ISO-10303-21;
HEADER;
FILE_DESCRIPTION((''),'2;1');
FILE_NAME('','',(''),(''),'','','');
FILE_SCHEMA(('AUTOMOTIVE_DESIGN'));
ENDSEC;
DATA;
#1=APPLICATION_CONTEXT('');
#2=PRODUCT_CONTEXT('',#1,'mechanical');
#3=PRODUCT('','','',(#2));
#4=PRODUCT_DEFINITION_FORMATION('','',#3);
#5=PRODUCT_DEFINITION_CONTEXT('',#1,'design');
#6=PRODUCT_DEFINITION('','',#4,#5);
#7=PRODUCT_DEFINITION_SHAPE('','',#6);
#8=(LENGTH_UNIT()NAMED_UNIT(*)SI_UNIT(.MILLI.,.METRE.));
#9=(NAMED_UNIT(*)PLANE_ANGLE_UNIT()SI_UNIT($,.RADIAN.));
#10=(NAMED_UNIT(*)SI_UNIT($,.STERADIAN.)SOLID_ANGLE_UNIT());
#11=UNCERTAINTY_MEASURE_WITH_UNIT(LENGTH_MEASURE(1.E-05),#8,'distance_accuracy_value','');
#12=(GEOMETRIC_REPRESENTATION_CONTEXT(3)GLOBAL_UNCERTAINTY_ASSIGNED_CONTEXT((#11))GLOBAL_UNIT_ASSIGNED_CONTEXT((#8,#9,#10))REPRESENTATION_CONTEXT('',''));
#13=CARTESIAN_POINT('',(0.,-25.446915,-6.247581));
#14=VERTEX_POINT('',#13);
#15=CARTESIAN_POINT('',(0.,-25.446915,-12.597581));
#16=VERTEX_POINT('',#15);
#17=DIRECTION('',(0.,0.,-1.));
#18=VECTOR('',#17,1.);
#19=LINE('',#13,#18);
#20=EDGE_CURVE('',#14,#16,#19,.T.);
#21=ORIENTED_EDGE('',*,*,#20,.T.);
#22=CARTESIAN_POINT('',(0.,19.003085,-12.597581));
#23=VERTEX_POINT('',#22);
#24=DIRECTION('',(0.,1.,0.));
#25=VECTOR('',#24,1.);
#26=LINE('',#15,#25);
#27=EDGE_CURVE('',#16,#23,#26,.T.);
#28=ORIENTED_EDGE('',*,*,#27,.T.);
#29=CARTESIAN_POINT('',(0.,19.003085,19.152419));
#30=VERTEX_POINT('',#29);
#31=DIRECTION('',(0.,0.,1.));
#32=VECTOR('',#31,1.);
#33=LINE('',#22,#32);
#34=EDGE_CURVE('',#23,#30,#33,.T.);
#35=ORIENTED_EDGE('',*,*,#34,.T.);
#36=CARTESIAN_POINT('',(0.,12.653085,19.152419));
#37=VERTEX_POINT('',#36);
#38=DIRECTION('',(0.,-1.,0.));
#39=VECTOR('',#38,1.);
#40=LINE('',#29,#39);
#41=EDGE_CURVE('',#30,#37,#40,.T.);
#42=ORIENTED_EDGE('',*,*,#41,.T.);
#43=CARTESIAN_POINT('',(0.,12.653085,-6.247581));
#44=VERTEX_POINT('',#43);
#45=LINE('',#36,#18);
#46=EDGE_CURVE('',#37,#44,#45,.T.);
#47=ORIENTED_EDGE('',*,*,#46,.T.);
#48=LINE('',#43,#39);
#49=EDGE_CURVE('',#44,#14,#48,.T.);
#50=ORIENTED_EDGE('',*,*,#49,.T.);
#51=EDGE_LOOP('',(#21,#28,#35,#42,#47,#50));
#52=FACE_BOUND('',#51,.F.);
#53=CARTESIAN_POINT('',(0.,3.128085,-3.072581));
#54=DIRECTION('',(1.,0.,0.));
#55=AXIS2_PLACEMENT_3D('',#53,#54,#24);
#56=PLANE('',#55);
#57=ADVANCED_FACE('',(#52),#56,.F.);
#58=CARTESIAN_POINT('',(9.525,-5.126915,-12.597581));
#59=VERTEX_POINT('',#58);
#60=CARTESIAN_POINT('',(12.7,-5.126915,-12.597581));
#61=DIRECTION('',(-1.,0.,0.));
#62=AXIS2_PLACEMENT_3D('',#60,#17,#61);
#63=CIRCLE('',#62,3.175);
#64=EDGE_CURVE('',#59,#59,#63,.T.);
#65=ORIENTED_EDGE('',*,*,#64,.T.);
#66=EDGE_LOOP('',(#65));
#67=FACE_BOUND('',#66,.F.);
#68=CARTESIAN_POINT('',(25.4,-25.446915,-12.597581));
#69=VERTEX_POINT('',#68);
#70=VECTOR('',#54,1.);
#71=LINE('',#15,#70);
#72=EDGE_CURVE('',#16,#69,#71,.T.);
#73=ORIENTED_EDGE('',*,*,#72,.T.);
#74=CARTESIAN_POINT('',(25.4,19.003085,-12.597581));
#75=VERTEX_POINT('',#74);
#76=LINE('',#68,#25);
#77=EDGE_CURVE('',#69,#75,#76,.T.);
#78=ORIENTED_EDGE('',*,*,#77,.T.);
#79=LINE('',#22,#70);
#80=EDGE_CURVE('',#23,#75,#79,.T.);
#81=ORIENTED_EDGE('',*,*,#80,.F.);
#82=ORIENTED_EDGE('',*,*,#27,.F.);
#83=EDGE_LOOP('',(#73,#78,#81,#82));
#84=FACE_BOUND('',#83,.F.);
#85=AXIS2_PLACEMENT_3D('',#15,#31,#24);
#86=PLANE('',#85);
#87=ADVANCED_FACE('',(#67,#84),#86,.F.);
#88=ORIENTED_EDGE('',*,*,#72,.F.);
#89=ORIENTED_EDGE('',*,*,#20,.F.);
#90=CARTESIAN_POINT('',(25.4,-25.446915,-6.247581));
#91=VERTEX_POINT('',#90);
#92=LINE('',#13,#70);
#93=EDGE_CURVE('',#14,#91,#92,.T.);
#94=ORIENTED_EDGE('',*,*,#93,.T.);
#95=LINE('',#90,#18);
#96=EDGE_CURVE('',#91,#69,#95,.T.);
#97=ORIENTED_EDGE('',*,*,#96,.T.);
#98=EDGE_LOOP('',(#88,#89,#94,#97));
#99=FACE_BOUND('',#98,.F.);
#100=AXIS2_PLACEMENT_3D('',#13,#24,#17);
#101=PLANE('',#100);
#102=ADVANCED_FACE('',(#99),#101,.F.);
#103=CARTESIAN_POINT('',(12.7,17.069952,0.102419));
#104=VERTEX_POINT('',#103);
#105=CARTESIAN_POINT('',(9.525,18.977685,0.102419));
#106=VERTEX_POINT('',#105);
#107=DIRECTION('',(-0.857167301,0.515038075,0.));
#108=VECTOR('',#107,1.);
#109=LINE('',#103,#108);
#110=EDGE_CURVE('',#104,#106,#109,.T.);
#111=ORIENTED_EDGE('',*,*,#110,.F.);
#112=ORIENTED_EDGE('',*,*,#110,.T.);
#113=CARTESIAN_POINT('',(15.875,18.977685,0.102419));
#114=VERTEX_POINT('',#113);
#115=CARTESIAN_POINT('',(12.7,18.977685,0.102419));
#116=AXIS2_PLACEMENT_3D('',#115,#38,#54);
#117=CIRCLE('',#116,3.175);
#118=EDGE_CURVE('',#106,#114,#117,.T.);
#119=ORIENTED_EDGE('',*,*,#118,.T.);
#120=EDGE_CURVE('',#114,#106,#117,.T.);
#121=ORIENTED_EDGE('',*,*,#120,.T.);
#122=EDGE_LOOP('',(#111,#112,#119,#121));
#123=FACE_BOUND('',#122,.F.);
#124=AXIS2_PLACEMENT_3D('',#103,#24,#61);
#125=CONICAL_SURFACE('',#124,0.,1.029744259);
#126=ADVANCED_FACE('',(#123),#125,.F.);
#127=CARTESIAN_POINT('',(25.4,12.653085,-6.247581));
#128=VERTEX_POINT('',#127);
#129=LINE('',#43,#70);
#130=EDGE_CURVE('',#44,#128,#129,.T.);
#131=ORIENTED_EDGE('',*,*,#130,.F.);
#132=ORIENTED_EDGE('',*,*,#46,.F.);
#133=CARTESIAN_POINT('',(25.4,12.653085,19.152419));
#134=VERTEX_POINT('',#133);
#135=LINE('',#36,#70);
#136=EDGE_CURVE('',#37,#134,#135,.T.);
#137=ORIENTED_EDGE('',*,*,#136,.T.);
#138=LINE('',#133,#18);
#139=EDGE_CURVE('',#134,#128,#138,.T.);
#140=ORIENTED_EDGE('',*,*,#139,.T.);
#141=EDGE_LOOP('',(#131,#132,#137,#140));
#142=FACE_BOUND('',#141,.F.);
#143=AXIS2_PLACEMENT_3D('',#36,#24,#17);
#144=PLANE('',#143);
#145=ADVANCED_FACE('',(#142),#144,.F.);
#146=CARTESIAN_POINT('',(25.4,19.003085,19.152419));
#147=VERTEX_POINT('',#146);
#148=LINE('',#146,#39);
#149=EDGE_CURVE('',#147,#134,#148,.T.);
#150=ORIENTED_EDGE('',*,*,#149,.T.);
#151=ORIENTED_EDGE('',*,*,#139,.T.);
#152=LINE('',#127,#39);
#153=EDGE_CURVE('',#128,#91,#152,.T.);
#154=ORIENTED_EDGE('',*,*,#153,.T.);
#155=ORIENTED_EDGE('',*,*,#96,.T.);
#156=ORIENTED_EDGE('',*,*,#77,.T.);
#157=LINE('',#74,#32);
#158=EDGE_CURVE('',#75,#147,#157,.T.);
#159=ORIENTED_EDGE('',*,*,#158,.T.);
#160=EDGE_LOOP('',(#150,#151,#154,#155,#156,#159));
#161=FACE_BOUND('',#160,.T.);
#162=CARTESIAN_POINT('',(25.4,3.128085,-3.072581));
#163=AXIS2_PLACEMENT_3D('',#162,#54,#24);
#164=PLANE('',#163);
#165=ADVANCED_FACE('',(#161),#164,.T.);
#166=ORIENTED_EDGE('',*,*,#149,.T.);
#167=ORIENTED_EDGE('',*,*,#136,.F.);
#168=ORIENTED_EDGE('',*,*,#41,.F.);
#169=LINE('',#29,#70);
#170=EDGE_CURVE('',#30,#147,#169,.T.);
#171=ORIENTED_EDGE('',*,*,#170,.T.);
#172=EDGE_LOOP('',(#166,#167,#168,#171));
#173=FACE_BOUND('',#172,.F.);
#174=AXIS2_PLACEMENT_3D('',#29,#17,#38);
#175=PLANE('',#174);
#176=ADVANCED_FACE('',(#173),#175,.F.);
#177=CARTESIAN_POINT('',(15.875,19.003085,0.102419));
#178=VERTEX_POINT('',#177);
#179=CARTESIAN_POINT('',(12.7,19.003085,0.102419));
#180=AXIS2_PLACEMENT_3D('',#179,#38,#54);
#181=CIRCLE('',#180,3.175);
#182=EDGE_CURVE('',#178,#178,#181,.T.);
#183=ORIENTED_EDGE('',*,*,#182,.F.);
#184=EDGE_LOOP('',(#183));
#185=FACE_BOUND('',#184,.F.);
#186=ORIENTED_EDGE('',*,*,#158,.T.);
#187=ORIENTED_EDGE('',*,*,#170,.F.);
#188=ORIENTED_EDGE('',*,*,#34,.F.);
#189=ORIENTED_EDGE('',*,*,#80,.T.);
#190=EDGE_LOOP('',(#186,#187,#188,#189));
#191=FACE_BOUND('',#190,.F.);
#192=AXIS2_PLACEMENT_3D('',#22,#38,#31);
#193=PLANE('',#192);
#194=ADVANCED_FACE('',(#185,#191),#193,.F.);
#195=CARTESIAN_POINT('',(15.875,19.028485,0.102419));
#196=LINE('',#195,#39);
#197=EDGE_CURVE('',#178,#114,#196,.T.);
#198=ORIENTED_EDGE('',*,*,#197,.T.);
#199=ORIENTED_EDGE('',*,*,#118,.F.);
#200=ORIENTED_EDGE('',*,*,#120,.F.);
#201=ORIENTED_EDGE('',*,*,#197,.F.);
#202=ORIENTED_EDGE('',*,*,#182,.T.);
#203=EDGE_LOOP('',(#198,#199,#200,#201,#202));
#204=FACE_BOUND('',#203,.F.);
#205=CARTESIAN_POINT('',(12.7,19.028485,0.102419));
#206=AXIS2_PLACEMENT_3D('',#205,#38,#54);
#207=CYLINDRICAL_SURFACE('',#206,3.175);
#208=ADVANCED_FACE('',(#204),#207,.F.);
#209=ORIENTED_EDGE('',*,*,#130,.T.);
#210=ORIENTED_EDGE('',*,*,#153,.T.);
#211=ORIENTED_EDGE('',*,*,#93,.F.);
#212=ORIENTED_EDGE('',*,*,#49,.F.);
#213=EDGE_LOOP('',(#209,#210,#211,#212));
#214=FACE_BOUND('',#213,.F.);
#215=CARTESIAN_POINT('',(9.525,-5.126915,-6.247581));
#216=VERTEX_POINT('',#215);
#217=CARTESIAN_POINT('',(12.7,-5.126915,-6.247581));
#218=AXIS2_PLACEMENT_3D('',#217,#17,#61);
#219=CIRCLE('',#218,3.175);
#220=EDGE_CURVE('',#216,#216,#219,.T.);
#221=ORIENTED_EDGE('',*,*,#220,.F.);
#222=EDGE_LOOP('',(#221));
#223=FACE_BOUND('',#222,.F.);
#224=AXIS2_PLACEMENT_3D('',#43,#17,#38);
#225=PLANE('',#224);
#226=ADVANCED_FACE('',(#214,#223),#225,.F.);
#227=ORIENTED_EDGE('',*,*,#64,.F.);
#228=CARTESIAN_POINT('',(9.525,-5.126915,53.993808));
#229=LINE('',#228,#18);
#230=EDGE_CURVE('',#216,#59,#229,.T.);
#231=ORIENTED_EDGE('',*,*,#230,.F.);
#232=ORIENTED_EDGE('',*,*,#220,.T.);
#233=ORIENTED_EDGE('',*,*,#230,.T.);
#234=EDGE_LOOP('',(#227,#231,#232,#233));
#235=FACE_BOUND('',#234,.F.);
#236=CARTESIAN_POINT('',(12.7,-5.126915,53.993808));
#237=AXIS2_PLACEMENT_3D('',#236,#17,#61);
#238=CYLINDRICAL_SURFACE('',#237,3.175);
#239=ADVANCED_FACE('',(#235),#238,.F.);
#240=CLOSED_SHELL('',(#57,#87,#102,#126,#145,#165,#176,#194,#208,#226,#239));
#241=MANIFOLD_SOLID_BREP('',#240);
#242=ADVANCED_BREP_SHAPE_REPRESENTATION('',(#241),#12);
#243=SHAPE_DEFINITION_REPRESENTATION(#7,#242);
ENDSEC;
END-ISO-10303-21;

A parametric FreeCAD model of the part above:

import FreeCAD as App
import Part
import Sketcher
from FreeCAD import Vector
Q = App.Units.Quantity

doc = App.newDocument("Part")
body = doc.addObject("PartDesign::Body", "Body")

sketch1 = doc.addObject("Sketcher::SketchObject", "Sketch")
body.addObject(sketch1)
sketch1.AttachmentSupport = (doc.YZ_Plane, [""])
sketch1.MapMode = "FlatFace"
sketch1.addGeometry(Part.LineSegment(Vector(19, 19, 0), Vector(13, 19, 0)), False)
sketch1.addGeometry(Part.LineSegment(Vector(13, 19, 0), Vector(13, -6, 0)), False)
sketch1.addGeometry(Part.LineSegment(Vector(13, -6, 0), Vector(-25, -6, 0)), False)
sketch1.addGeometry(Part.LineSegment(Vector(-25, -6, 0), Vector(-25, -13, 0)), False)
sketch1.addGeometry(Part.LineSegment(Vector(-25, -13, 0), Vector(19, -13, 0)), False)
sketch1.addGeometry(Part.LineSegment(Vector(19, -13, 0), Vector(19, 19, 0)), False)
sketch1.addConstraint(Sketcher.Constraint("Coincident", 0, 2, 1, 1))
sketch1.addConstraint(Sketcher.Constraint("Coincident", 1, 2, 2, 1))
sketch1.addConstraint(Sketcher.Constraint("Coincident", 2, 2, 3, 1))
sketch1.addConstraint(Sketcher.Constraint("Coincident", 3, 2, 4, 1))
sketch1.addConstraint(Sketcher.Constraint("Coincident", 4, 2, 5, 1))
sketch1.addConstraint(Sketcher.Constraint("Coincident", 5, 2, 0, 1))
sketch1.addConstraint(Sketcher.Constraint("Horizontal", 0))
sketch1.addConstraint(Sketcher.Constraint("Vertical", 1))
sketch1.addConstraint(Sketcher.Constraint("Horizontal", 2))
sketch1.addConstraint(Sketcher.Constraint("Vertical", 3))
sketch1.addConstraint(Sketcher.Constraint("Horizontal", 4))
sketch1.addConstraint(Sketcher.Constraint("Vertical", 5))
sketch1.addConstraint(Sketcher.Constraint("Equal", 0, 3))
sketch1.addConstraint(Sketcher.Constraint("DistanceY", 1, 2, 1, 1, Q("1 in")))
sketch1.addConstraint(Sketcher.Constraint("DistanceX", 2, 2, 2, 1, Q("1.5 in")))
sketch1.addConstraint(Sketcher.Constraint("DistanceX", 0, 2, 0, 1, Q("0.25 in")))
sketch1.addConstraint(Sketcher.Constraint("DistanceY", -1, 1, 0, 2, Q("19.152419 mm")))
sketch1.addConstraint(Sketcher.Constraint("DistanceX", -1, 1, 0, 2, Q("12.653085 mm")))
pad1 = doc.addObject("PartDesign::Pad", "Pad")
body.addObject(pad1)
pad1.Profile = sketch1
pad1.Length = Q("1 in")

sketch2 = doc.addObject("Sketcher::SketchObject", "Sketch001")
body.addObject(sketch2)
sketch2.AttachmentSupport = (doc.XZ_Plane, [""])
sketch2.MapMode = "FlatFace"
sketch2.AttachmentOffset = App.Placement(Vector(0, 0, -19.003085), App.Rotation())
sketch2.addGeometry(Part.Circle(Vector(12.7, 0.1, 0), Vector(0, 0, 1), 3.2), False)
sketch2.addConstraint(Sketcher.Constraint("Diameter", 0, Q("0.25 in")))
sketch2.addConstraint(Sketcher.Constraint("DistanceX", -1, 1, 0, 3, Q("0.5 in")))
sketch2.addConstraint(Sketcher.Constraint("DistanceY", -1, 1, 0, 3, Q("0.102419 mm")))
doc.recompute()
hole = doc.addObject("PartDesign::Hole", "Hole")
body.addObject(hole)
hole.Profile = sketch2
hole.ThreadType = "None"
hole.Diameter = Q("0.25 in")
hole.DepthType = "Dimension"
hole.Depth = Q("0.001 in")
hole.DrillPoint = "Angled"
hole.DrillPointAngle = 118
hole.Reversed = True

sketch3 = doc.addObject("Sketcher::SketchObject", "Sketch002")
body.addObject(sketch3)
sketch3.AttachmentSupport = (doc.XY_Plane, [""])
sketch3.MapMode = "FlatFace"
sketch3.AttachmentOffset = App.Placement(Vector(0, 0, -6.247581), App.Rotation())
sketch3.addGeometry(Part.Circle(Vector(12.7, -5.1, 0), Vector(0, 0, 1), 3.2), False)
sketch3.addConstraint(Sketcher.Constraint("Diameter", 0, Q("0.25 in")))
sketch3.addConstraint(Sketcher.Constraint("DistanceX", -1, 1, 0, 3, Q("0.5 in")))
sketch3.addConstraint(Sketcher.Constraint("DistanceY", 0, 3, -1, 1, Q("5.126915 mm")))
doc.recompute()
hole2 = doc.addObject("PartDesign::Hole", "Hole001")
body.addObject(hole2)
hole2.Profile = sketch3
hole2.ThreadType = "None"
hole2.Diameter = Q("0.25 in")
hole2.DepthType = "ThroughAll"

doc.recompute()
